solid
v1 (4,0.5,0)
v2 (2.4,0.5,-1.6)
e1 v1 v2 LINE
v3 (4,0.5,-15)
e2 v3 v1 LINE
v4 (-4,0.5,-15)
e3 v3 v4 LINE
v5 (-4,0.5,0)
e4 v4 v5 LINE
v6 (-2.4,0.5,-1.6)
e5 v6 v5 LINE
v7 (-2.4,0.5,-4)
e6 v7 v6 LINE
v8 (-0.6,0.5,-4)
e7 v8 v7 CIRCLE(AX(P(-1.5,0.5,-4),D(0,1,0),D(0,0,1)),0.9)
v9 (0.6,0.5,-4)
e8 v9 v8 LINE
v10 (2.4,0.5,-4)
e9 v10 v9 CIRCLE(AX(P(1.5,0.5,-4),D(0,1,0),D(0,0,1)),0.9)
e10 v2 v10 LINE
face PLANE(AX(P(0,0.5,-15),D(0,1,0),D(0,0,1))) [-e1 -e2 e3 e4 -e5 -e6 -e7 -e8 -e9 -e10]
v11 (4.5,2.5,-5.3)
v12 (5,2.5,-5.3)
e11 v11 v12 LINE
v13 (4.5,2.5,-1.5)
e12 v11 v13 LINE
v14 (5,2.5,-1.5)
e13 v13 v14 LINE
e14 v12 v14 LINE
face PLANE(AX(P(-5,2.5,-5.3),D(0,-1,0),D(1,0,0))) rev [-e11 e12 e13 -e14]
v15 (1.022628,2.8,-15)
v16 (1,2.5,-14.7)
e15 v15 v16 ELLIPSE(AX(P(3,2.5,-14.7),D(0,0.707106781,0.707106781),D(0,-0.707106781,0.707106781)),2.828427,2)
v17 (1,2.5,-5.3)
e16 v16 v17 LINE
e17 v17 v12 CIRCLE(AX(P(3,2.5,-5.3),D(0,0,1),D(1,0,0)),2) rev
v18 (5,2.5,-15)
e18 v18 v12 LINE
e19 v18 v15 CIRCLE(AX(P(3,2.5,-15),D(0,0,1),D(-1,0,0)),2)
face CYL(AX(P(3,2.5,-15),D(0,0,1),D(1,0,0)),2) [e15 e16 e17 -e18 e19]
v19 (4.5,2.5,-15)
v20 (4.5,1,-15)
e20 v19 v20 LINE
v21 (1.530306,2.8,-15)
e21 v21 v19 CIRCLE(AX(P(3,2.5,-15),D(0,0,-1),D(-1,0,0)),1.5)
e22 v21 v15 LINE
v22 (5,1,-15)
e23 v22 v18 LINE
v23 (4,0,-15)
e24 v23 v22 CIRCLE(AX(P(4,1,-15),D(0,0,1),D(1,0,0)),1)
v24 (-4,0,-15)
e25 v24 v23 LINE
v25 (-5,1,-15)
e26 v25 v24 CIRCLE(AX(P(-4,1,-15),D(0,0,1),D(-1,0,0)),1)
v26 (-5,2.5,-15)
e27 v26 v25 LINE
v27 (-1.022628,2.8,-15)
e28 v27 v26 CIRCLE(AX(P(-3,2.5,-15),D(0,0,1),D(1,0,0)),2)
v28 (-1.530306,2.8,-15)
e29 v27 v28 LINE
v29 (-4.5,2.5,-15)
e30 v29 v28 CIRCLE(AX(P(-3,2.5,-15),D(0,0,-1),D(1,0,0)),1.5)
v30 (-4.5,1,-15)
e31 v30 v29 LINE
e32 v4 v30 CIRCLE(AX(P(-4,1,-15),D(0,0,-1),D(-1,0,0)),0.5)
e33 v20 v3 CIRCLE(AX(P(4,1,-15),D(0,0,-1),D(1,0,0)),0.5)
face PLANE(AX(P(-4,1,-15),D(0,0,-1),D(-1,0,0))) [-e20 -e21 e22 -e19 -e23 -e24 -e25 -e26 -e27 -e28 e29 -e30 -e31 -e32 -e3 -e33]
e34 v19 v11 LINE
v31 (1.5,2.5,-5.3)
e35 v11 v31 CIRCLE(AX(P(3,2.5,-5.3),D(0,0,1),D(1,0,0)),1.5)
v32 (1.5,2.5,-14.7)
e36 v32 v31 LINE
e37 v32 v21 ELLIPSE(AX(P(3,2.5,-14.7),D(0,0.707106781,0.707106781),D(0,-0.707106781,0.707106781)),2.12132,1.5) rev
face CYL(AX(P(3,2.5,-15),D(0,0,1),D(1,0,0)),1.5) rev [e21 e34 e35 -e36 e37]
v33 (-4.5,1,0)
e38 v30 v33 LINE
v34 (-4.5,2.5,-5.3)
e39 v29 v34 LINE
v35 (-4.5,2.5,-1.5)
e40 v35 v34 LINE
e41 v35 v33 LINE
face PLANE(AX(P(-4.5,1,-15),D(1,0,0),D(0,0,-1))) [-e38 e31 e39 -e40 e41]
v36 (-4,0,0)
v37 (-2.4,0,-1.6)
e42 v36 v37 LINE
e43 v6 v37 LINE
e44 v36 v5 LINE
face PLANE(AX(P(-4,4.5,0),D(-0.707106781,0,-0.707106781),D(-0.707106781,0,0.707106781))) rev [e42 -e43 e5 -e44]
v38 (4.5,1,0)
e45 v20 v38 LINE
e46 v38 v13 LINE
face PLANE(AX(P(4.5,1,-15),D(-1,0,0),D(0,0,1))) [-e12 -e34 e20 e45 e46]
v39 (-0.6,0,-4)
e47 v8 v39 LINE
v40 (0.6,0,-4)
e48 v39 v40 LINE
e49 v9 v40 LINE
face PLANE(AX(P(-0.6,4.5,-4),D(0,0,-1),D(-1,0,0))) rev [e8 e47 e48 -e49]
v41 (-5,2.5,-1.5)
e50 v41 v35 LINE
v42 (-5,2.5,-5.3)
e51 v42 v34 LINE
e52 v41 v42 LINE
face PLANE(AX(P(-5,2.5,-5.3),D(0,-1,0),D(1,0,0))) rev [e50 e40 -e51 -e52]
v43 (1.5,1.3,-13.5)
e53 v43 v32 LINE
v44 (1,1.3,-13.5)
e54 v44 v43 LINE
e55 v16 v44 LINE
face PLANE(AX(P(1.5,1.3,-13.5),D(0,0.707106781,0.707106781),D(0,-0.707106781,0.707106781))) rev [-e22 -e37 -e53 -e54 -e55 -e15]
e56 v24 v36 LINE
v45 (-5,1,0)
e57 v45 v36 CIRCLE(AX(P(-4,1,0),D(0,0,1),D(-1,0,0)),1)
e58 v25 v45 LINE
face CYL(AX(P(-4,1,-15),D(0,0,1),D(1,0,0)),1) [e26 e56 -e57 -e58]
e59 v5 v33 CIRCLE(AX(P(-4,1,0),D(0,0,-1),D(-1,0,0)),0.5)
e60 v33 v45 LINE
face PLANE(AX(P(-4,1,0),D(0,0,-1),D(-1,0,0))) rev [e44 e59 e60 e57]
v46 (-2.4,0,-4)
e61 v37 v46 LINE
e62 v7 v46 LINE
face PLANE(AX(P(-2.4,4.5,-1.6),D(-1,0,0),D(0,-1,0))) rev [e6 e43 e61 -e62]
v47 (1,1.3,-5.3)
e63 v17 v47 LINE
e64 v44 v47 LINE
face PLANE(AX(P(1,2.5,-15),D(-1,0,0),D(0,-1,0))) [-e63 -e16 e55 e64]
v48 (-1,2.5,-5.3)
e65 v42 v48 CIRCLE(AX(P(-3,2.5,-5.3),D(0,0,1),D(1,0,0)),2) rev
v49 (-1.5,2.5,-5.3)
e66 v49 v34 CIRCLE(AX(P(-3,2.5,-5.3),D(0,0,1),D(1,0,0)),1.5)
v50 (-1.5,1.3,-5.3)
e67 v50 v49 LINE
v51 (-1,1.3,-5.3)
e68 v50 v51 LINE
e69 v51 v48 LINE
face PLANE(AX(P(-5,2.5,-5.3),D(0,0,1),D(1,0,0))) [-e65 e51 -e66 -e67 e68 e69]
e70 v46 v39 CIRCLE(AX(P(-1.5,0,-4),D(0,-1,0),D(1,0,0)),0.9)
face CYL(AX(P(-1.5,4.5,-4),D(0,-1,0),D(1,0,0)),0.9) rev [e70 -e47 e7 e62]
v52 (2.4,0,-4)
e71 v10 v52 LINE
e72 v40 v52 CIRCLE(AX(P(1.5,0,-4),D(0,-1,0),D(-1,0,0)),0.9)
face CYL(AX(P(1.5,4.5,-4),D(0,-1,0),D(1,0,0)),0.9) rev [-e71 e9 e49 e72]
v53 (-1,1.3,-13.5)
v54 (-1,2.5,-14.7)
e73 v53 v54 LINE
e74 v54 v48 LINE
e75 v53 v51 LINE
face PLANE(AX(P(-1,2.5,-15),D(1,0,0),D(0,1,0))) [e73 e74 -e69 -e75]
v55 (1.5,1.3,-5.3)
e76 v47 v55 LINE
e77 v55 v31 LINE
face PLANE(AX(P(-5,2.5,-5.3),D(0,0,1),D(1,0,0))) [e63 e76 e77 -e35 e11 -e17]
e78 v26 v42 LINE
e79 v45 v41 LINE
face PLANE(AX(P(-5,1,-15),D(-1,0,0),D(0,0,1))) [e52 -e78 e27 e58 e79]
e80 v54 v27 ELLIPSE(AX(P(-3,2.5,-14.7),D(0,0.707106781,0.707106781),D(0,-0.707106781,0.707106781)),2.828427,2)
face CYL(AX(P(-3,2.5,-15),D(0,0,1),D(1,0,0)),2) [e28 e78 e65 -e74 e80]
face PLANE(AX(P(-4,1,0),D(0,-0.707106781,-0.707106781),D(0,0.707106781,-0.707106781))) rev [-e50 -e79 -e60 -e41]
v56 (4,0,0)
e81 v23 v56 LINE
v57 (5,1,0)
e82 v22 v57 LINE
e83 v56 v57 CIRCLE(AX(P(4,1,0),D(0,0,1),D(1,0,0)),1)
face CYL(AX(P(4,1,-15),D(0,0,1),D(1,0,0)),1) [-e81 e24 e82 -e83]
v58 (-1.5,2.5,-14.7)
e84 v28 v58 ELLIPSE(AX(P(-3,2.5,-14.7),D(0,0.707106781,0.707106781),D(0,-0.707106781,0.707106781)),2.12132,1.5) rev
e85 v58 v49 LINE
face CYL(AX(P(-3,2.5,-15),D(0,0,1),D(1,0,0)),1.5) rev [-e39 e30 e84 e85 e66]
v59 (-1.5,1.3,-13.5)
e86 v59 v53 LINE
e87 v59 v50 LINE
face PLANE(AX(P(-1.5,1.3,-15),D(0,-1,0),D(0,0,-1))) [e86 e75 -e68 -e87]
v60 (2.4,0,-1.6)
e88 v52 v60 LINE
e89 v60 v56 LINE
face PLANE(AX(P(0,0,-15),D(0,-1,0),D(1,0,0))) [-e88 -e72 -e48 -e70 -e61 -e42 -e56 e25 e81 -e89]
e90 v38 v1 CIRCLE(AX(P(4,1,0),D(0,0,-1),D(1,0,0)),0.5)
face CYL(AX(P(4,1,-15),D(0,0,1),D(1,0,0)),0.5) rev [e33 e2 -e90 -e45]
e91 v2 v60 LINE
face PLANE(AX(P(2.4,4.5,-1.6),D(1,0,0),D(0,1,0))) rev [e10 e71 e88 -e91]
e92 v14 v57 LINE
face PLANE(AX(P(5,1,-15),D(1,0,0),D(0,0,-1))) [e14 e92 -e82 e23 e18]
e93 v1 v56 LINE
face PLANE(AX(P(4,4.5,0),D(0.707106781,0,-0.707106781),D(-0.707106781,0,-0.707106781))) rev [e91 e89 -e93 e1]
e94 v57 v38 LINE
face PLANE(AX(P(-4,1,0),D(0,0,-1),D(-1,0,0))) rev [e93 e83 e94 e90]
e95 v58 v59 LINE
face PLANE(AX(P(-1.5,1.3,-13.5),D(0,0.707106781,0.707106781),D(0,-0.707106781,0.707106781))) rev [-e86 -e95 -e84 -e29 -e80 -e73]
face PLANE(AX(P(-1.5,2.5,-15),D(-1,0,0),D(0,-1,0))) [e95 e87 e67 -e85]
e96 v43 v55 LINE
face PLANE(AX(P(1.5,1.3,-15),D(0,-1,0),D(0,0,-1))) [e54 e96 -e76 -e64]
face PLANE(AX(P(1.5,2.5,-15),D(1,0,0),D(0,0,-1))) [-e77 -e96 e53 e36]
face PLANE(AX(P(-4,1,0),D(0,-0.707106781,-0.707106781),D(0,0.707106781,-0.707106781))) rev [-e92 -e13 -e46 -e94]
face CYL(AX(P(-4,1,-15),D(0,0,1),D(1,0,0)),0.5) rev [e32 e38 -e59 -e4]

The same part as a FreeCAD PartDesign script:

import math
import FreeCAD as App
import Part
import Sketcher
Q = App.Units.Quantity


def edges_at(feature, points):
    """Names of the edges that pass closest to the given points."""
    edges = feature.Shape.Edges
    near = lambda p: min(range(len(edges)), key=lambda i: edges[i].distToShape(Part.Vertex(*p))[0])
    return sorted({f"Edge{near(p) + 1}" for p in points})

doc = App.newDocument("Part")
body = doc.addObject("PartDesign::Body", "Body")

# Sketch on XY plane
sketch1 = body.newObject("Sketcher::SketchObject", "Sketch")
sketch1.AttachmentSupport = (doc.getObject("XY_Plane"), [""])
sketch1.MapMode = "FlatFace"
sketch1.addGeometry([
    Part.ArcOfCircle(Part.Circle(App.Vector(-4, 1, 0), App.Vector(0, 0, 1), 1), math.radians(-180), math.radians(-90)),  # 0
    Part.LineSegment(App.Vector(-4, 0, 0), App.Vector(4, 0, 0)),  # 1
    Part.ArcOfCircle(Part.Circle(App.Vector(4, 1, 0), App.Vector(0, 0, 1), 1), math.radians(-90), math.radians(0)),  # 2
    Part.LineSegment(App.Vector(5, 1, 0), App.Vector(5, 2.5, 0)),  # 3
    Part.ArcOfCircle(Part.Circle(App.Vector(3, 2.5, 0), App.Vector(0, 0, 1), 2), math.radians(0), math.radians(180)),  # 4
    Part.LineSegment(App.Vector(1, 2.5, 0), App.Vector(1, 1.3, 0)),  # 5
    Part.LineSegment(App.Vector(1, 1.3, 0), App.Vector(1.5, 1.3, 0)),  # 6
    Part.LineSegment(App.Vector(1.5, 1.3, 0), App.Vector(1.5, 2.5, 0)),  # 7
    Part.ArcOfCircle(Part.Circle(App.Vector(3, 2.5, 0), App.Vector(0, 0, 1), 1.5), math.radians(0), math.radians(180)),  # 8
    Part.LineSegment(App.Vector(4.5, 2.5, 0), App.Vector(4.5, 1, 0)),  # 9
    Part.ArcOfCircle(Part.Circle(App.Vector(4, 1, 0), App.Vector(0, 0, 1), 0.5), math.radians(-90), math.radians(0)),  # 10
    Part.LineSegment(App.Vector(4, 0.5, 0), App.Vector(-4, 0.5, 0)),  # 11
    Part.ArcOfCircle(Part.Circle(App.Vector(-4, 1, 0), App.Vector(0, 0, 1), 0.5), math.radians(180), math.radians(270)),  # 12
    Part.LineSegment(App.Vector(-4.5, 1, 0), App.Vector(-4.5, 2.5, 0)),  # 13
    Part.ArcOfCircle(Part.Circle(App.Vector(-3, 2.5, 0), App.Vector(0, 0, 1), 1.5), math.radians(0), math.radians(180)),  # 14
    Part.LineSegment(App.Vector(-1.5, 2.5, 0), App.Vector(-1.5, 1.3, 0)),  # 15
    Part.LineSegment(App.Vector(-1.5, 1.3, 0), App.Vector(-1, 1.3, 0)),  # 16
    Part.LineSegment(App.Vector(-1, 1.3, 0), App.Vector(-1, 2.5, 0)),  # 17
    Part.ArcOfCircle(Part.Circle(App.Vector(-3, 2.5, 0), App.Vector(0, 0, 1), 2), math.radians(0), math.radians(180)),  # 18
    Part.LineSegment(App.Vector(-5, 2.5, 0), App.Vector(-5, 1, 0)),  # 19
], False)
sketch1.addConstraint([
    Sketcher.Constraint("Tangent", 0, 2, 1, 1),
    Sketcher.Constraint("Tangent", 1, 2, 2, 1),
    Sketcher.Constraint("Tangent", 2, 2, 3, 1),
    Sketcher.Constraint("Tangent", 3, 2, 4, 1),
    Sketcher.Constraint("Tangent", 4, 2, 5, 1),
    Sketcher.Constraint("Coincident", 5, 2, 6, 1),
    Sketcher.Constraint("Coincident", 6, 2, 7, 1),
    Sketcher.Constraint("Tangent", 7, 2, 8, 2),
    Sketcher.Constraint("Tangent", 8, 1, 9, 1),
    Sketcher.Constraint("Tangent", 9, 2, 10, 2),
    Sketcher.Constraint("Tangent", 10, 1, 11, 1),
    Sketcher.Constraint("Tangent", 11, 2, 12, 2),
    Sketcher.Constraint("Tangent", 12, 1, 13, 1),
    Sketcher.Constraint("Tangent", 13, 2, 14, 2),
    Sketcher.Constraint("Tangent", 14, 1, 15, 1),
    Sketcher.Constraint("Coincident", 15, 2, 16, 1),
    Sketcher.Constraint("Coincident", 16, 2, 17, 1),
    Sketcher.Constraint("Tangent", 17, 2, 18, 1),
    Sketcher.Constraint("Tangent", 18, 2, 19, 1),
    Sketcher.Constraint("Tangent", 19, 2, 0, 1),
    Sketcher.Constraint("Horizontal", 1),
    Sketcher.Constraint("Vertical", 3),
    Sketcher.Constraint("Vertical", 5),
    Sketcher.Constraint("Horizontal", 6),
    Sketcher.Constraint("Vertical", 7),
    Sketcher.Constraint("Vertical", 9),
    Sketcher.Constraint("Horizontal", 11),
    Sketcher.Constraint("Vertical", 13),
    Sketcher.Constraint("Vertical", 15),
    Sketcher.Constraint("Horizontal", 16),
    Sketcher.Constraint("Vertical", 17),
    Sketcher.Constraint("Vertical", 19),
    Sketcher.Constraint("Coincident", 8, 3, 4, 3),
    Sketcher.Constraint("Coincident", 10, 3, 2, 3),
    Sketcher.Constraint("Coincident", 12, 3, 0, 3),
    Sketcher.Constraint("Coincident", 18, 3, 14, 3),
    Sketcher.Constraint("Equal", 0, 2),
    Sketcher.Constraint("Equal", 8, 14),
    Sketcher.Constraint("Symmetric", 0, 2, 1, 2, -1, 1),
    Sketcher.Constraint("Horizontal", 8, 3, 14, 3),
    Sketcher.Constraint("Horizontal", 6, 2, 15, 2),
    Sketcher.Constraint("Radius", 0, Q("1 mm")),
    Sketcher.Constraint("Radius", 4, Q("2 mm")),
    Sketcher.Constraint("Radius", 8, Q("1.5 mm")),
    Sketcher.Constraint("DistanceX", 1, 1, 1, 2, Q("8 mm")),
    Sketcher.Constraint("DistanceY", 3, 1, 3, 2, Q("1.5 mm")),
    Sketcher.Constraint("DistanceY", 5, 2, 5, 1, Q("1.2 mm")),
])
pad1 = body.newObject("PartDesign::Pad", "Pad")
pad1.Profile = sketch1
pad1.Length = 15
pad1.Reversed = True

# Sketch on XZ plane
sketch2 = body.newObject("Sketcher::SketchObject", "Sketch001")
sketch2.AttachmentSupport = (doc.getObject("XZ_Plane"), [""])
sketch2.MapMode = "FlatFace"
sketch2.addGeometry([
    Part.LineSegment(App.Vector(-4, 0, 0), App.Vector(-2.4, -1.6, 0)),  # 0
    Part.LineSegment(App.Vector(-2.4, -1.6, 0), App.Vector(-2.4, -4, 0)),  # 1
    Part.ArcOfCircle(Part.Circle(App.Vector(-1.5, -4, 0), App.Vector(0, 0, 1), 0.9), math.radians(180), math.radians(360)),  # 2
    Part.LineSegment(App.Vector(-0.6, -4, 0), App.Vector(0.6, -4, 0)),  # 3
    Part.ArcOfCircle(Part.Circle(App.Vector(1.5, -4, 0), App.Vector(0, 0, 1), 0.9), math.radians(180), math.radians(360)),  # 4
    Part.LineSegment(App.Vector(2.4, -4, 0), App.Vector(2.4, -1.6, 0)),  # 5
    Part.LineSegment(App.Vector(2.4, -1.6, 0), App.Vector(4, 0, 0)),  # 6
    Part.LineSegment(App.Vector(4, 0, 0), App.Vector(4, 0.5, 0)),  # 7
    Part.LineSegment(App.Vector(4, 0.5, 0), App.Vector(-4, 0.5, 0)),  # 8
    Part.LineSegment(App.Vector(-4, 0.5, 0), App.Vector(-4, 0, 0)),  # 9
], False)
sketch2.addConstraint([
    Sketcher.Constraint("Coincident", 0, 2, 1, 1),
    Sketcher.Constraint("Tangent", 1, 2, 2, 1),
    Sketcher.Constraint("Coincident", 2, 2, 3, 1),
    Sketcher.Constraint("Coincident", 3, 2, 4, 1),
    Sketcher.Constraint("Tangent", 4, 2, 5, 1),
    Sketcher.Constraint("Coincident", 5, 2, 6, 1),
    Sketcher.Constraint("Coincident", 6, 2, 7, 1),
    Sketcher.Constraint("Coincident", 7, 2, 8, 1),
    Sketcher.Constraint("Coincident", 8, 2, 9, 1),
    Sketcher.Constraint("Coincident", 9, 2, 0, 1),
    Sketcher.Constraint("Vertical", 1),
    Sketcher.Constraint("Horizontal", 3),
    Sketcher.Constraint("Vertical", 5),
    Sketcher.Constraint("Vertical", 7),
    Sketcher.Constraint("Horizontal", 8),
    Sketcher.Constraint("Vertical", 9),
    Sketcher.Constraint("Equal", 2, 4),
    Sketcher.Constraint("Symmetric", 6, 2, 9, 2, -1, 1),
    Sketcher.Constraint("Symmetric", 2, 3, 4, 3, -2),
    Sketcher.Constraint("PointOnObject", 6, 2, -1),
    Sketcher.Constraint("Perpendicular", 0, 6),
    Sketcher.Constraint("Horizontal", 1, 2, 2, 2),
    Sketcher.Constraint("Horizontal", 0, 2, 5, 2),
    Sketcher.Constraint("Radius", 2, Q("0.9 mm")),
    Sketcher.Constraint("DistanceX", 8, 2, 8, 1, Q("8 mm")),
    Sketcher.Constraint("DistanceX", 3, 1, 3, 2, Q("1.2 mm")),
    Sketcher.Constraint("DistanceY", 1, 2, 1, 1, Q("2.4 mm")),
    Sketcher.Constraint("DistanceY", 7, 1, 7, 2, Q("0.537501 mm")),
])
pocket1 = body.newObject("PartDesign::Pocket", "Pocket")
pocket1.Profile = sketch2
pocket1.Type = "ThroughAll"

# Sketch on XZ plane
sketch3 = body.newObject("Sketcher::SketchObject", "Sketch002")
sketch3.AttachmentSupport = (doc.getObject("XZ_Plane"), [""])
sketch3.MapMode = "FlatFace"
sketch3.AttachmentOffset = App.Placement(App.Vector(0, 0, -4.5), App.Rotation())
sketch3.addGeometry([
    Part.LineSegment(App.Vector(-5, 0, 0), App.Vector(-5, -5, 0)),
    Part.LineSegment(App.Vector(-5, -5, 0), App.Vector(5, -5, 0)),
    Part.LineSegment(App.Vector(5, -5, 0), App.Vector(5, 0, 0)),
    Part.LineSegment(App.Vector(5, 0, 0), App.Vector(-5, 0, 0)),
], False)
sketch3.addConstraint([
    Sketcher.Constraint("Coincident", 0, 2, 1, 1),
    Sketcher.Constraint("Coincident", 1, 2, 2, 1),
    Sketcher.Constraint("Coincident", 2, 2, 3, 1),
    Sketcher.Constraint("Coincident", 3, 2, 0, 1),
    Sketcher.Constraint("Vertical", 0),
    Sketcher.Constraint("Horizontal", 1),
    Sketcher.Constraint("Vertical", 2),
    Sketcher.Constraint("Horizontal", 3),
    Sketcher.Constraint("Symmetric", 2, 2, 3, 2, -1, 1),
    Sketcher.Constraint("DistanceX", 1, 1, 1, 2, Q("10 mm")),
    Sketcher.Constraint("DistanceY", 0, 2, 0, 1, Q("5.3 mm")),
])
pocket2 = body.newObject("PartDesign::Pocket", "Pocket001")
pocket2.Profile = sketch3
pocket2.Length = 2
pocket2.Reversed = True

# Sketch on XZ plane
sketch4 = body.newObject("Sketcher::SketchObject", "Sketch003")
sketch4.AttachmentSupport = (doc.getObject("XZ_Plane"), [""])
sketch4.MapMode = "FlatFace"
sketch4.AttachmentOffset = App.Placement(App.Vector(0, 0, -2.5), App.Rotation())
sketch4.addGeometry([
    Part.LineSegment(App.Vector(-1.5, -5.3, 0), App.Vector(-1.5, -4.5, 0)),
    Part.LineSegment(App.Vector(-1.5, -4.5, 0), App.Vector(1.5, -4.5, 0)),
    Part.LineSegment(App.Vector(1.5, -4.5, 0), App.Vector(1.5, -5.3, 0)),
    Part.LineSegment(App.Vector(1.5, -5.3, 0), App.Vector(-1.5, -5.3, 0)),
], False)
sketch4.addConstraint([
    Sketcher.Constraint("Coincident", 0, 2, 1, 1),
    Sketcher.Constraint("Coincident", 1, 2, 2, 1),
    Sketcher.Constraint("Coincident", 2, 2, 3, 1),
    Sketcher.Constraint("Coincident", 3, 2, 0, 1),
    Sketcher.Constraint("Vertical", 0),
    Sketcher.Constraint("Horizontal", 1),
    Sketcher.Constraint("Vertical", 2),
    Sketcher.Constraint("Horizontal", 3),
    Sketcher.Constraint("DistanceX", 1, 1, 1, 2, Q("3 mm")),
    Sketcher.Constraint("DistanceX", 0, 2, -1, 1, Q("1.5 mm")),
    Sketcher.Constraint("DistanceY", 2, 2, -1, 1, Q("5.3 mm")),
    Sketcher.Constraint("DistanceY", 0, 1, 0, 2, Q("0.815561 mm")),
])
pocket3 = body.newObject("PartDesign::Pocket", "Pocket002")
pocket3.Profile = sketch4
pocket3.Length = 2
pocket3.Reversed = True
doc.recompute()

chamfer = body.newObject("PartDesign::Chamfer", "Chamfer")
chamfer.Base = (pocket3, edges_at(pocket3, [
    (4.75, 2.5, 0),
    (-4.75, 2.5, 0),
    (1.25, 1.3, -15),
    (-1.25, 1.3, -15),
]))
chamfer.Size = 1.5

doc.recompute()
